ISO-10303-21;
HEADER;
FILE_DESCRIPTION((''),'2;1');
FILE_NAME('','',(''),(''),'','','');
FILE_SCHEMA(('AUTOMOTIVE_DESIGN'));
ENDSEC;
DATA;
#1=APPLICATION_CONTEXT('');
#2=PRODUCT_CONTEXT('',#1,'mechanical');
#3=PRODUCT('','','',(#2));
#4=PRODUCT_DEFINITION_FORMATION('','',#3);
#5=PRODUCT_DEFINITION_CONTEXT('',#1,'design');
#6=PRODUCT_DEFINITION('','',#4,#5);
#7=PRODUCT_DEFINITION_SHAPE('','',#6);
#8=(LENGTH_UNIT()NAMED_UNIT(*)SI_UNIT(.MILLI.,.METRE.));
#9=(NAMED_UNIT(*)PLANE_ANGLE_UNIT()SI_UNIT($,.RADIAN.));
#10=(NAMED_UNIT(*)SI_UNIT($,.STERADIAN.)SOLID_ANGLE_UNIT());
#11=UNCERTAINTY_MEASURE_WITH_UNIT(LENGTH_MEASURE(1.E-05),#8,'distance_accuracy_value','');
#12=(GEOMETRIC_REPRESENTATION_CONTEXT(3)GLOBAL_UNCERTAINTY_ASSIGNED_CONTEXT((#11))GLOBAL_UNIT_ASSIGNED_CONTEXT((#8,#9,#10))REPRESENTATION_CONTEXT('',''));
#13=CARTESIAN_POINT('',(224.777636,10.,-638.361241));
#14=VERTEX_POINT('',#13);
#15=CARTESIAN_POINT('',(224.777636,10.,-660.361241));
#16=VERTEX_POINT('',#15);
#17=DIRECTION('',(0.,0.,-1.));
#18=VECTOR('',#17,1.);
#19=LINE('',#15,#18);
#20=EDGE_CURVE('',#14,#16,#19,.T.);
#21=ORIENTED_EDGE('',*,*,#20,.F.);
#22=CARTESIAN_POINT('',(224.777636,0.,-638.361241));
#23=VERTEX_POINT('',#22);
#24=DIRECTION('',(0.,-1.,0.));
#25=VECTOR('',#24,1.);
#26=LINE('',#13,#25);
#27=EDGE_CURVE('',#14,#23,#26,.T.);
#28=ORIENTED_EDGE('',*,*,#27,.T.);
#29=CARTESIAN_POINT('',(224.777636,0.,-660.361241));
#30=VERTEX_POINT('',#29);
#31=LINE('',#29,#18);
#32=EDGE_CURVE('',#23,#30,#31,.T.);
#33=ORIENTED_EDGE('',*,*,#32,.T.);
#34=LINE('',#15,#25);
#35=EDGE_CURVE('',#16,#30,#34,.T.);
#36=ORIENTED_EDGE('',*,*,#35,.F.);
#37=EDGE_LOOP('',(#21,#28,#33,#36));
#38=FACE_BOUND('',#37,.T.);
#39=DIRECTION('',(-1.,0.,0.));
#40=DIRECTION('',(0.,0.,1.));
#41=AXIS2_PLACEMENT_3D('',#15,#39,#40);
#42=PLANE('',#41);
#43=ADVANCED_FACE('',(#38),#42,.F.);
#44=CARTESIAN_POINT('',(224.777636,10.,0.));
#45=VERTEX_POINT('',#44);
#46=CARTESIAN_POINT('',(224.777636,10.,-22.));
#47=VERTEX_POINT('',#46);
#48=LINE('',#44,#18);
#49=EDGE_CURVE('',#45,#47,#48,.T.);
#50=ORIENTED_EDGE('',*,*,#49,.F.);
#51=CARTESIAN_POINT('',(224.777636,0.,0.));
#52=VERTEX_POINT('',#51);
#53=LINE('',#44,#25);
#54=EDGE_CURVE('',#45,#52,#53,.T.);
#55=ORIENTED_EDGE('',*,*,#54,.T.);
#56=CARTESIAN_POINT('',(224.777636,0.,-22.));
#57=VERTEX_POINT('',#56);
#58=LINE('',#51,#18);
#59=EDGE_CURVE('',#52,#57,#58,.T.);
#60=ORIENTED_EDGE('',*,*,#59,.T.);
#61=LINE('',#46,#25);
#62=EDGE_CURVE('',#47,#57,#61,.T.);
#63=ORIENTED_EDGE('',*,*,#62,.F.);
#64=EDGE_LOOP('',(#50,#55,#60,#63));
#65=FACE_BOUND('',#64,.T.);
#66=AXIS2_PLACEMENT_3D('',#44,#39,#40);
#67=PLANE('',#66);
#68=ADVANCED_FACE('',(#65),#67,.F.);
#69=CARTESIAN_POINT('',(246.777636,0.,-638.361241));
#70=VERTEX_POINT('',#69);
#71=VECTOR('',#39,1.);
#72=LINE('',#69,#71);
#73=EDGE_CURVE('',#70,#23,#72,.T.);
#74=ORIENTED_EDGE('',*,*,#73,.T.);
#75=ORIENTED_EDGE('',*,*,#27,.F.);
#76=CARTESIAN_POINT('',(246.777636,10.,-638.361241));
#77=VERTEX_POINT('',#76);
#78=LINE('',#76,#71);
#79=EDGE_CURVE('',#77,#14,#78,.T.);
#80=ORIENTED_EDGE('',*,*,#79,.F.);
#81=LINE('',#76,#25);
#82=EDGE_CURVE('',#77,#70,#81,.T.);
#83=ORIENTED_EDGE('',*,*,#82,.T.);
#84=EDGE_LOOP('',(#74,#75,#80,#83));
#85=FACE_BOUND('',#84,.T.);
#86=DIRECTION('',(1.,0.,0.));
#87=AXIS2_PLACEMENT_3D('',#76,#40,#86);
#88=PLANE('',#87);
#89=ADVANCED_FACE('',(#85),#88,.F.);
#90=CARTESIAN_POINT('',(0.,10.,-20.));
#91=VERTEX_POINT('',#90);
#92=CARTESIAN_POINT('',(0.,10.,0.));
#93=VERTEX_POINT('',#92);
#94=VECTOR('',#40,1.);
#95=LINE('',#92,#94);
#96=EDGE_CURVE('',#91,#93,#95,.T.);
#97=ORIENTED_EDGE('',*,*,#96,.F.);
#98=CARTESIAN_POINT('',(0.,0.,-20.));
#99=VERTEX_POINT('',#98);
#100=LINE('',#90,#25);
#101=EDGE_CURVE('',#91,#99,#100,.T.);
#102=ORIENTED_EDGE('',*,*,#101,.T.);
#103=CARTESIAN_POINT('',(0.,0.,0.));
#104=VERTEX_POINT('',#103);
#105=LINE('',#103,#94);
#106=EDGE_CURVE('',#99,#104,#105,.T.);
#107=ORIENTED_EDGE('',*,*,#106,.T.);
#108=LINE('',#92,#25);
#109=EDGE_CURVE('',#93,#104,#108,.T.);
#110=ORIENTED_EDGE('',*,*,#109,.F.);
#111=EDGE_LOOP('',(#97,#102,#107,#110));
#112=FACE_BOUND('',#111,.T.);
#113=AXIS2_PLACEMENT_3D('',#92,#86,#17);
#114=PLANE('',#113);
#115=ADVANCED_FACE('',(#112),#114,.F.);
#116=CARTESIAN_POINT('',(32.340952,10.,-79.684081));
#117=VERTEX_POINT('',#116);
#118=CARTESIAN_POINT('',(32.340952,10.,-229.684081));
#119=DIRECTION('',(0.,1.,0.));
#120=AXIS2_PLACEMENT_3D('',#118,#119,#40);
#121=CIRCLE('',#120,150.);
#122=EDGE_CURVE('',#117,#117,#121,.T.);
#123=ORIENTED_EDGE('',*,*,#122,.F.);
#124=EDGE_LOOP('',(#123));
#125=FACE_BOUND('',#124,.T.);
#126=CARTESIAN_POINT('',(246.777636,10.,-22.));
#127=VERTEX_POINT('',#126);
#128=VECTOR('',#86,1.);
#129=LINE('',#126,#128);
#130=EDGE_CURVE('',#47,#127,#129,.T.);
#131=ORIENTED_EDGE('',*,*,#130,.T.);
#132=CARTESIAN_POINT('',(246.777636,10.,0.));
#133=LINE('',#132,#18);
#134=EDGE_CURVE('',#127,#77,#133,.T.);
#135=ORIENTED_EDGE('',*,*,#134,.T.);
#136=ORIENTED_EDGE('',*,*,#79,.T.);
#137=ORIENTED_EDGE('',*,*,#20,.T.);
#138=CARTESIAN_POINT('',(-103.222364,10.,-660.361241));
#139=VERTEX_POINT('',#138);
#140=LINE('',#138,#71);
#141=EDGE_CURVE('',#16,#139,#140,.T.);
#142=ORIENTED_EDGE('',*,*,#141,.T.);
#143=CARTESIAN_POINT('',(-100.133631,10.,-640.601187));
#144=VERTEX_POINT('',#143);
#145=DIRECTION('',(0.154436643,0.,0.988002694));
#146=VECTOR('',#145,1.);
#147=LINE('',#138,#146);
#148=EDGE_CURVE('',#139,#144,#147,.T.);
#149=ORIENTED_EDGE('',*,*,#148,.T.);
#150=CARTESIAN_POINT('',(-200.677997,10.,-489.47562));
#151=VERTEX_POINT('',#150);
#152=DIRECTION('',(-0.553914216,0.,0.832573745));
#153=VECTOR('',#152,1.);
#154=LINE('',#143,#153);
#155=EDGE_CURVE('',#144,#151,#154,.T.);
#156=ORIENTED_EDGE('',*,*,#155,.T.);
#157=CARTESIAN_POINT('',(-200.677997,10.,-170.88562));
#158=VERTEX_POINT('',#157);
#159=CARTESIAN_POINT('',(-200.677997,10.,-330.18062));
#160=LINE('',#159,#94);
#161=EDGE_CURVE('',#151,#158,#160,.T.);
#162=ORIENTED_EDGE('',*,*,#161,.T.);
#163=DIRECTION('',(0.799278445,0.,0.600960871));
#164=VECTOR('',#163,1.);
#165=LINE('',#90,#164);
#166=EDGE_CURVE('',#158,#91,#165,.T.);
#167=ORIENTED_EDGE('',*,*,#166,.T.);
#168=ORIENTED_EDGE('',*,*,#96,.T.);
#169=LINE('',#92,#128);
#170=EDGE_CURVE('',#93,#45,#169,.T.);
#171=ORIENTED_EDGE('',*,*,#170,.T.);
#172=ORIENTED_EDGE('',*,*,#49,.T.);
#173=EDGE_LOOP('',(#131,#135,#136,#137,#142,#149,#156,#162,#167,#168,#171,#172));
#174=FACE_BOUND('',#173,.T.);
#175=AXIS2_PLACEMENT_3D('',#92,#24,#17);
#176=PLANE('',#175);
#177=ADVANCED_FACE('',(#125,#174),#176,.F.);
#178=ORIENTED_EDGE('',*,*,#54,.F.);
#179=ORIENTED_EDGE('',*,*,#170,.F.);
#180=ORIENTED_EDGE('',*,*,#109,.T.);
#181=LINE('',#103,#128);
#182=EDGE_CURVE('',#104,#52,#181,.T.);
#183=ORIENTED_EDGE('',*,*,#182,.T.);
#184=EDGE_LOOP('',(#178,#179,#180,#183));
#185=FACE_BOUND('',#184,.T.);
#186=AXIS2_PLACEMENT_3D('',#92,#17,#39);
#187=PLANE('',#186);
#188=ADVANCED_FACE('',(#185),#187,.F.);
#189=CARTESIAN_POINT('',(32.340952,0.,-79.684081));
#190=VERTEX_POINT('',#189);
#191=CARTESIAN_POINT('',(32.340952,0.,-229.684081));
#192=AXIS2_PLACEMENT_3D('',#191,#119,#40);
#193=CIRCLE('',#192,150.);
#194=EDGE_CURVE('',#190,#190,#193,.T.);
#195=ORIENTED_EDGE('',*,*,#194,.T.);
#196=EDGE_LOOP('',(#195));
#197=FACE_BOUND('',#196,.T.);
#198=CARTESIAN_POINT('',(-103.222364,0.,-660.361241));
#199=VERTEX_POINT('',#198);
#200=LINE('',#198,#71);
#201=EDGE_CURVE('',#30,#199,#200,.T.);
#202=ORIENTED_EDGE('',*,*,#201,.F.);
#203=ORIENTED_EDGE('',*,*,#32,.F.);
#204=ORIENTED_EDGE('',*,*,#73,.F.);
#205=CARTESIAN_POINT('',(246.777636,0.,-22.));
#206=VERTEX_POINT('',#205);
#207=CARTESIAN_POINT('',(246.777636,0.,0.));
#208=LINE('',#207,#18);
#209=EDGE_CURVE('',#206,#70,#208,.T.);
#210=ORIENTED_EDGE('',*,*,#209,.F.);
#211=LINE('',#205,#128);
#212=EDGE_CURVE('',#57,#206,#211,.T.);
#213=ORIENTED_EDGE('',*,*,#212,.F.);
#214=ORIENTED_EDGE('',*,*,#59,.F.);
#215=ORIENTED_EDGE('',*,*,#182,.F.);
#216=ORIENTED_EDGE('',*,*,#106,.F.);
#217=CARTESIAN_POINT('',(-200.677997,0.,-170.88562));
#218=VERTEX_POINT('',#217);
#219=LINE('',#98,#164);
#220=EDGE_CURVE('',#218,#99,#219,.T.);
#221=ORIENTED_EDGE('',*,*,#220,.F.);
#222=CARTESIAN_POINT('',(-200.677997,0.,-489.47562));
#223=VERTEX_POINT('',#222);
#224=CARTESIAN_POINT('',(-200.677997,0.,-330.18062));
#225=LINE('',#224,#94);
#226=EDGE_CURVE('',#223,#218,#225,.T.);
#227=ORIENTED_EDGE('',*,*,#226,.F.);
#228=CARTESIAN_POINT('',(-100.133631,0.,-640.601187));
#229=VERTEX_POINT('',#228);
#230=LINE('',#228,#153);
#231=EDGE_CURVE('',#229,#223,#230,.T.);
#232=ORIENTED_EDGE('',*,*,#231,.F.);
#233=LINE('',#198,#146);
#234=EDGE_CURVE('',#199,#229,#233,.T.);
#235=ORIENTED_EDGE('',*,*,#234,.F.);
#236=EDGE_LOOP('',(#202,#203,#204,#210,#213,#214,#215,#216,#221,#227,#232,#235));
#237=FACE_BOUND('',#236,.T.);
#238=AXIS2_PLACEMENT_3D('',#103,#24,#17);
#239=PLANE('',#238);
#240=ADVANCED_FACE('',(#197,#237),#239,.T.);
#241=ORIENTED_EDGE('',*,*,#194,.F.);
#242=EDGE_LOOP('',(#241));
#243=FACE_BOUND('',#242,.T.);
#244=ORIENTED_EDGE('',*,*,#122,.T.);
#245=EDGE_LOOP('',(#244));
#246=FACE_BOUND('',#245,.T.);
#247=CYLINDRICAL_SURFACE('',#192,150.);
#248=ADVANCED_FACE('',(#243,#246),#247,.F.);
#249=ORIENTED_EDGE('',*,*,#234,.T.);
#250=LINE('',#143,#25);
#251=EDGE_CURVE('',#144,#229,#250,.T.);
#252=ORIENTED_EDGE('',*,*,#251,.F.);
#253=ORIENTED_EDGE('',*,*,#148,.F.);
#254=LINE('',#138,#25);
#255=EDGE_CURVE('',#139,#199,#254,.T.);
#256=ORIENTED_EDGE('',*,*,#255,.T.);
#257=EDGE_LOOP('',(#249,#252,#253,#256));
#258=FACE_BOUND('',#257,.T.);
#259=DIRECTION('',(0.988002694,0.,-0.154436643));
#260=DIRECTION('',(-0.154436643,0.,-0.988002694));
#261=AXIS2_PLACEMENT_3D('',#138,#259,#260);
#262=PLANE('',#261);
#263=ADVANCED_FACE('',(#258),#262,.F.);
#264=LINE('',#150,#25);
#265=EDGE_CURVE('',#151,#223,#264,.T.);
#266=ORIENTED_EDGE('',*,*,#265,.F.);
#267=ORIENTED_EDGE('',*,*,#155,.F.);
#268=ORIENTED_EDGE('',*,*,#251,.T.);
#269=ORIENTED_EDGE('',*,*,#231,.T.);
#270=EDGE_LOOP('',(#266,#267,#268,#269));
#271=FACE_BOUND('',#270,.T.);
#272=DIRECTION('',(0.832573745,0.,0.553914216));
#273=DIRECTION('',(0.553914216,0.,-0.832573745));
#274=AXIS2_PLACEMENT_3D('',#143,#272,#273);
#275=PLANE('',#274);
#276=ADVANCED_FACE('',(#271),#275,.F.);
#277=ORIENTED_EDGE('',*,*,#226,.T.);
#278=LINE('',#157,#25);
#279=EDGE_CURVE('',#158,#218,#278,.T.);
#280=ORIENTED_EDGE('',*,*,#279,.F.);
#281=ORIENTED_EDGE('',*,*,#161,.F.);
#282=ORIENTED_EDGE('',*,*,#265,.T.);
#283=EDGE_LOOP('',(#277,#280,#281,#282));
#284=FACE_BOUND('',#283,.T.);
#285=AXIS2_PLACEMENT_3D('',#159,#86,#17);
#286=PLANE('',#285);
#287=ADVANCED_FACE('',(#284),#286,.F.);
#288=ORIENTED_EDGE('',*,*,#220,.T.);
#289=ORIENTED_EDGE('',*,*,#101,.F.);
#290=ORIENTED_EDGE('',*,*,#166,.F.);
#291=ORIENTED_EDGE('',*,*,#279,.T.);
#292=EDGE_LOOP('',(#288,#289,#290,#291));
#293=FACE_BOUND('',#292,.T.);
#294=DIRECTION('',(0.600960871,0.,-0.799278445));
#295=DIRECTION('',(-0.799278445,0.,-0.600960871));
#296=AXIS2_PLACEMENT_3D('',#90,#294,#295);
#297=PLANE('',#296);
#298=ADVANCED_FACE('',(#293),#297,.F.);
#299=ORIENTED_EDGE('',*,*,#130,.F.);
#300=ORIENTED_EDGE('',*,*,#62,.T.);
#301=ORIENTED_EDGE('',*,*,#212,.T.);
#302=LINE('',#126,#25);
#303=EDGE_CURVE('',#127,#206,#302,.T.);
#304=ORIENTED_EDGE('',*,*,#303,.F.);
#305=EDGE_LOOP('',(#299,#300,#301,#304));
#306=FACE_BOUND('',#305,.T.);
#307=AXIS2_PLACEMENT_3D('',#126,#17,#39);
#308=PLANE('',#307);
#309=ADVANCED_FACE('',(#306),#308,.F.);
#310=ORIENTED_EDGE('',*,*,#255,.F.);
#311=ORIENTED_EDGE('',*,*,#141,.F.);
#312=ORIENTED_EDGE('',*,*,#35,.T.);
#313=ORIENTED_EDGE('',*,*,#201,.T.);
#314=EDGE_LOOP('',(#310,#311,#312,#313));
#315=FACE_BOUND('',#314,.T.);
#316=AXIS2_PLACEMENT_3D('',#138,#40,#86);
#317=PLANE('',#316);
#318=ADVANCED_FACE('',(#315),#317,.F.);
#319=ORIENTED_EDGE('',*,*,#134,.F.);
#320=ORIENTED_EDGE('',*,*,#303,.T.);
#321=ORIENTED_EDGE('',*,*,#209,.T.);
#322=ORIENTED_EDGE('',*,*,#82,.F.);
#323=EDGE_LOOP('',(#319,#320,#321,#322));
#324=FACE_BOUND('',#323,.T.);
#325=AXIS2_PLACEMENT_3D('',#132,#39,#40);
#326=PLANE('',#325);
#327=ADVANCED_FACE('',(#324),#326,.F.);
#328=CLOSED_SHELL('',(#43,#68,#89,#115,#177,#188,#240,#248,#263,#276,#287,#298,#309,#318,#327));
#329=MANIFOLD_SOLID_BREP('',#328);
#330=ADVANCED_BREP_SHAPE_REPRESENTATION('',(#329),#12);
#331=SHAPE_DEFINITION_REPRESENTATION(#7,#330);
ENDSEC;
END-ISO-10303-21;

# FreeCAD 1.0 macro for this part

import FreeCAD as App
import Part
import Sketcher
from FreeCAD import Vector


def add_polygon(sketch, points):
    """Adds a closed chain of lines whose ends are joined by coincident constraints."""
    first, n = sketch.GeometryCount, len(points)
    for a, b in zip(points, points[1:] + points[:1]):
        sketch.addGeometry(Part.LineSegment(App.Vector(*a, 0), App.Vector(*b, 0)), False)
    for i in range(n):
        sketch.addConstraint(Sketcher.Constraint("Coincident", first + i, 2, first + (i + 1) % n, 1))

doc = App.newDocument("Part")
body = doc.addObject("PartDesign::Body", "Body")

# Sketch on XZ plane
sketch1 = body.newObject("Sketcher::SketchObject", "Sketch")
sketch1.AttachmentSupport = (doc.getObject("XZ_Plane"), [""])
sketch1.MapMode = "FlatFace"
add_polygon(sketch1, [(0, 0), (246.777636, 0), (246.777636, -660.361241), (-103.222364, -660.361241), (-100.133631, -640.601187), (-200.677997, -489.47562), (-200.677997, -170.88562), (0, -20)])  # lines 0-7
sketch1.addConstraint([
    Sketcher.Constraint("Horizontal", 0),
    Sketcher.Constraint("Vertical", 1),
    Sketcher.Constraint("Horizontal", 2),
    Sketcher.Constraint("Vertical", 5),
    Sketcher.Constraint("Vertical", 7),
    Sketcher.Constraint("Coincident", 7, 2, -1, 1),
    Sketcher.Constraint("DistanceX", 2, 2, 2, 1, 350.0),
    Sketcher.Constraint("DistanceY", 7, 1, 7, 2, 20.0),
    Sketcher.Constraint("Distance", 3, 20.0),
    Sketcher.Constraint("DistanceY", 5, 1, 5, 2, 318.59),
    Sketcher.Constraint("DistanceY", 1, 2, 1, 1, 660.361241),
    Sketcher.Constraint("Distance", 6, 251.073951),
    Sketcher.Constraint("DistanceX", 0, 1, 0, 2, 246.777636),
    Sketcher.Constraint("DistanceX", 3, 2, -1, 1, 100.133631),
    Sketcher.Constraint("DistanceY", 4, 2, -1, 1, 489.47562),
])
pad1 = body.newObject("PartDesign::Pad", "Pad")
pad1.Profile = sketch1
pad1.Length = 10
pad1.Reversed = True

# Sketch on XZ plane
sketch2 = body.newObject("Sketcher::SketchObject", "Sketch001")
sketch2.AttachmentSupport = (doc.getObject("XZ_Plane"), [""])
sketch2.MapMode = "FlatFace"
sketch2.AttachmentOffset = App.Placement(Vector(0, 0, -10), App.Rotation())
add_polygon(sketch2, [(-20, -358.38), (-20, -338.38), (0, -338.38), (0, -358.38)])  # lines 0-3
sketch2.addConstraint([
    Sketcher.Constraint("Vertical", 0),
    Sketcher.Constraint("Horizontal", 1),
    Sketcher.Constraint("Vertical", 2),
    Sketcher.Constraint("Horizontal", 3),
    Sketcher.Constraint("PointOnObject", 1, 2, -2),
    Sketcher.Constraint("Equal", 3, 0),
    Sketcher.Constraint("DistanceX", 1, 1, 1, 2, 20.0),
    Sketcher.Constraint("DistanceY", 0, 2, -1, 1, 338.38),
])
pocket1 = body.newObject("PartDesign::Pocket", "Pocket")
pocket1.Profile = sketch2
pocket1.Length = 10
pocket1.Reversed = True

# Sketch on XZ plane
sketch3 = body.newObject("Sketcher::SketchObject", "Sketch002")
sketch3.AttachmentSupport = (doc.getObject("XZ_Plane"), [""])
sketch3.MapMode = "FlatFace"
add_polygon(sketch3, [(224.777636, -638.361241), (224.777636, -660.361241), (246.777636, -660.361241), (246.777636, -638.361241)])  # lines 0-3
add_polygon(sketch3, [(224.777636, 0), (224.777636, -22), (246.777636, -22), (246.777636, 0)])  # lines 4-7
sketch3.addConstraint([
    Sketcher.Constraint("Vertical", 0),
    Sketcher.Constraint("Horizontal", 1),
    Sketcher.Constraint("Vertical", 2),
    Sketcher.Constraint("Horizontal", 3),
    Sketcher.Constraint("Vertical", 4),
    Sketcher.Constraint("Horizontal", 5),
    Sketcher.Constraint("Vertical", 6),
    Sketcher.Constraint("Horizontal", 7),
    Sketcher.Constraint("PointOnObject", 6, 2, -1),
    Sketcher.Constraint("Vertical", 3, 2, 4, 2),
    Sketcher.Constraint("Vertical", 2, 2, 5, 2),
    Sketcher.Constraint("Equal", 7, 0),
    Sketcher.Constraint("Equal", 2, 4),
    Sketcher.Constraint("DistanceX", 1, 1, 1, 2, 22.0),
    Sketcher.Constraint("DistanceY", 0, 2, -1, 1, 660.361241),
    Sketcher.Constraint("DistanceX", -1, 1, 0, 2, 224.777636),
])
pocket2 = body.newObject("PartDesign::Pocket", "Pocket001")
pocket2.Profile = sketch3
pocket2.Type = "ThroughAll"

# Sketch on XZ plane
sketch4 = body.newObject("Sketcher::SketchObject", "Sketch003")
sketch4.AttachmentSupport = (doc.getObject("XZ_Plane"), [""])
sketch4.MapMode = "FlatFace"
sketch4.AttachmentOffset = App.Placement(Vector(0, 0, -10), App.Rotation())
sketch4.addGeometry(Part.Circle(Vector(32.340952, -229.684081, 0), Vector(0, 0, 1), 150), False)
sketch4.addConstraint([
    Sketcher.Constraint("Diameter", 0, 300.0),
    Sketcher.Constraint("DistanceX", -1, 1, 0, 3, 32.340952),
    Sketcher.Constraint("DistanceY", 0, 3, -1, 1, 229.684081),
])
pocket3 = body.newObject("PartDesign::Pocket", "Pocket002")
pocket3.Profile = sketch4
pocket3.Type = "ThroughAll"
pocket3.Reversed = True

doc.recompute()
